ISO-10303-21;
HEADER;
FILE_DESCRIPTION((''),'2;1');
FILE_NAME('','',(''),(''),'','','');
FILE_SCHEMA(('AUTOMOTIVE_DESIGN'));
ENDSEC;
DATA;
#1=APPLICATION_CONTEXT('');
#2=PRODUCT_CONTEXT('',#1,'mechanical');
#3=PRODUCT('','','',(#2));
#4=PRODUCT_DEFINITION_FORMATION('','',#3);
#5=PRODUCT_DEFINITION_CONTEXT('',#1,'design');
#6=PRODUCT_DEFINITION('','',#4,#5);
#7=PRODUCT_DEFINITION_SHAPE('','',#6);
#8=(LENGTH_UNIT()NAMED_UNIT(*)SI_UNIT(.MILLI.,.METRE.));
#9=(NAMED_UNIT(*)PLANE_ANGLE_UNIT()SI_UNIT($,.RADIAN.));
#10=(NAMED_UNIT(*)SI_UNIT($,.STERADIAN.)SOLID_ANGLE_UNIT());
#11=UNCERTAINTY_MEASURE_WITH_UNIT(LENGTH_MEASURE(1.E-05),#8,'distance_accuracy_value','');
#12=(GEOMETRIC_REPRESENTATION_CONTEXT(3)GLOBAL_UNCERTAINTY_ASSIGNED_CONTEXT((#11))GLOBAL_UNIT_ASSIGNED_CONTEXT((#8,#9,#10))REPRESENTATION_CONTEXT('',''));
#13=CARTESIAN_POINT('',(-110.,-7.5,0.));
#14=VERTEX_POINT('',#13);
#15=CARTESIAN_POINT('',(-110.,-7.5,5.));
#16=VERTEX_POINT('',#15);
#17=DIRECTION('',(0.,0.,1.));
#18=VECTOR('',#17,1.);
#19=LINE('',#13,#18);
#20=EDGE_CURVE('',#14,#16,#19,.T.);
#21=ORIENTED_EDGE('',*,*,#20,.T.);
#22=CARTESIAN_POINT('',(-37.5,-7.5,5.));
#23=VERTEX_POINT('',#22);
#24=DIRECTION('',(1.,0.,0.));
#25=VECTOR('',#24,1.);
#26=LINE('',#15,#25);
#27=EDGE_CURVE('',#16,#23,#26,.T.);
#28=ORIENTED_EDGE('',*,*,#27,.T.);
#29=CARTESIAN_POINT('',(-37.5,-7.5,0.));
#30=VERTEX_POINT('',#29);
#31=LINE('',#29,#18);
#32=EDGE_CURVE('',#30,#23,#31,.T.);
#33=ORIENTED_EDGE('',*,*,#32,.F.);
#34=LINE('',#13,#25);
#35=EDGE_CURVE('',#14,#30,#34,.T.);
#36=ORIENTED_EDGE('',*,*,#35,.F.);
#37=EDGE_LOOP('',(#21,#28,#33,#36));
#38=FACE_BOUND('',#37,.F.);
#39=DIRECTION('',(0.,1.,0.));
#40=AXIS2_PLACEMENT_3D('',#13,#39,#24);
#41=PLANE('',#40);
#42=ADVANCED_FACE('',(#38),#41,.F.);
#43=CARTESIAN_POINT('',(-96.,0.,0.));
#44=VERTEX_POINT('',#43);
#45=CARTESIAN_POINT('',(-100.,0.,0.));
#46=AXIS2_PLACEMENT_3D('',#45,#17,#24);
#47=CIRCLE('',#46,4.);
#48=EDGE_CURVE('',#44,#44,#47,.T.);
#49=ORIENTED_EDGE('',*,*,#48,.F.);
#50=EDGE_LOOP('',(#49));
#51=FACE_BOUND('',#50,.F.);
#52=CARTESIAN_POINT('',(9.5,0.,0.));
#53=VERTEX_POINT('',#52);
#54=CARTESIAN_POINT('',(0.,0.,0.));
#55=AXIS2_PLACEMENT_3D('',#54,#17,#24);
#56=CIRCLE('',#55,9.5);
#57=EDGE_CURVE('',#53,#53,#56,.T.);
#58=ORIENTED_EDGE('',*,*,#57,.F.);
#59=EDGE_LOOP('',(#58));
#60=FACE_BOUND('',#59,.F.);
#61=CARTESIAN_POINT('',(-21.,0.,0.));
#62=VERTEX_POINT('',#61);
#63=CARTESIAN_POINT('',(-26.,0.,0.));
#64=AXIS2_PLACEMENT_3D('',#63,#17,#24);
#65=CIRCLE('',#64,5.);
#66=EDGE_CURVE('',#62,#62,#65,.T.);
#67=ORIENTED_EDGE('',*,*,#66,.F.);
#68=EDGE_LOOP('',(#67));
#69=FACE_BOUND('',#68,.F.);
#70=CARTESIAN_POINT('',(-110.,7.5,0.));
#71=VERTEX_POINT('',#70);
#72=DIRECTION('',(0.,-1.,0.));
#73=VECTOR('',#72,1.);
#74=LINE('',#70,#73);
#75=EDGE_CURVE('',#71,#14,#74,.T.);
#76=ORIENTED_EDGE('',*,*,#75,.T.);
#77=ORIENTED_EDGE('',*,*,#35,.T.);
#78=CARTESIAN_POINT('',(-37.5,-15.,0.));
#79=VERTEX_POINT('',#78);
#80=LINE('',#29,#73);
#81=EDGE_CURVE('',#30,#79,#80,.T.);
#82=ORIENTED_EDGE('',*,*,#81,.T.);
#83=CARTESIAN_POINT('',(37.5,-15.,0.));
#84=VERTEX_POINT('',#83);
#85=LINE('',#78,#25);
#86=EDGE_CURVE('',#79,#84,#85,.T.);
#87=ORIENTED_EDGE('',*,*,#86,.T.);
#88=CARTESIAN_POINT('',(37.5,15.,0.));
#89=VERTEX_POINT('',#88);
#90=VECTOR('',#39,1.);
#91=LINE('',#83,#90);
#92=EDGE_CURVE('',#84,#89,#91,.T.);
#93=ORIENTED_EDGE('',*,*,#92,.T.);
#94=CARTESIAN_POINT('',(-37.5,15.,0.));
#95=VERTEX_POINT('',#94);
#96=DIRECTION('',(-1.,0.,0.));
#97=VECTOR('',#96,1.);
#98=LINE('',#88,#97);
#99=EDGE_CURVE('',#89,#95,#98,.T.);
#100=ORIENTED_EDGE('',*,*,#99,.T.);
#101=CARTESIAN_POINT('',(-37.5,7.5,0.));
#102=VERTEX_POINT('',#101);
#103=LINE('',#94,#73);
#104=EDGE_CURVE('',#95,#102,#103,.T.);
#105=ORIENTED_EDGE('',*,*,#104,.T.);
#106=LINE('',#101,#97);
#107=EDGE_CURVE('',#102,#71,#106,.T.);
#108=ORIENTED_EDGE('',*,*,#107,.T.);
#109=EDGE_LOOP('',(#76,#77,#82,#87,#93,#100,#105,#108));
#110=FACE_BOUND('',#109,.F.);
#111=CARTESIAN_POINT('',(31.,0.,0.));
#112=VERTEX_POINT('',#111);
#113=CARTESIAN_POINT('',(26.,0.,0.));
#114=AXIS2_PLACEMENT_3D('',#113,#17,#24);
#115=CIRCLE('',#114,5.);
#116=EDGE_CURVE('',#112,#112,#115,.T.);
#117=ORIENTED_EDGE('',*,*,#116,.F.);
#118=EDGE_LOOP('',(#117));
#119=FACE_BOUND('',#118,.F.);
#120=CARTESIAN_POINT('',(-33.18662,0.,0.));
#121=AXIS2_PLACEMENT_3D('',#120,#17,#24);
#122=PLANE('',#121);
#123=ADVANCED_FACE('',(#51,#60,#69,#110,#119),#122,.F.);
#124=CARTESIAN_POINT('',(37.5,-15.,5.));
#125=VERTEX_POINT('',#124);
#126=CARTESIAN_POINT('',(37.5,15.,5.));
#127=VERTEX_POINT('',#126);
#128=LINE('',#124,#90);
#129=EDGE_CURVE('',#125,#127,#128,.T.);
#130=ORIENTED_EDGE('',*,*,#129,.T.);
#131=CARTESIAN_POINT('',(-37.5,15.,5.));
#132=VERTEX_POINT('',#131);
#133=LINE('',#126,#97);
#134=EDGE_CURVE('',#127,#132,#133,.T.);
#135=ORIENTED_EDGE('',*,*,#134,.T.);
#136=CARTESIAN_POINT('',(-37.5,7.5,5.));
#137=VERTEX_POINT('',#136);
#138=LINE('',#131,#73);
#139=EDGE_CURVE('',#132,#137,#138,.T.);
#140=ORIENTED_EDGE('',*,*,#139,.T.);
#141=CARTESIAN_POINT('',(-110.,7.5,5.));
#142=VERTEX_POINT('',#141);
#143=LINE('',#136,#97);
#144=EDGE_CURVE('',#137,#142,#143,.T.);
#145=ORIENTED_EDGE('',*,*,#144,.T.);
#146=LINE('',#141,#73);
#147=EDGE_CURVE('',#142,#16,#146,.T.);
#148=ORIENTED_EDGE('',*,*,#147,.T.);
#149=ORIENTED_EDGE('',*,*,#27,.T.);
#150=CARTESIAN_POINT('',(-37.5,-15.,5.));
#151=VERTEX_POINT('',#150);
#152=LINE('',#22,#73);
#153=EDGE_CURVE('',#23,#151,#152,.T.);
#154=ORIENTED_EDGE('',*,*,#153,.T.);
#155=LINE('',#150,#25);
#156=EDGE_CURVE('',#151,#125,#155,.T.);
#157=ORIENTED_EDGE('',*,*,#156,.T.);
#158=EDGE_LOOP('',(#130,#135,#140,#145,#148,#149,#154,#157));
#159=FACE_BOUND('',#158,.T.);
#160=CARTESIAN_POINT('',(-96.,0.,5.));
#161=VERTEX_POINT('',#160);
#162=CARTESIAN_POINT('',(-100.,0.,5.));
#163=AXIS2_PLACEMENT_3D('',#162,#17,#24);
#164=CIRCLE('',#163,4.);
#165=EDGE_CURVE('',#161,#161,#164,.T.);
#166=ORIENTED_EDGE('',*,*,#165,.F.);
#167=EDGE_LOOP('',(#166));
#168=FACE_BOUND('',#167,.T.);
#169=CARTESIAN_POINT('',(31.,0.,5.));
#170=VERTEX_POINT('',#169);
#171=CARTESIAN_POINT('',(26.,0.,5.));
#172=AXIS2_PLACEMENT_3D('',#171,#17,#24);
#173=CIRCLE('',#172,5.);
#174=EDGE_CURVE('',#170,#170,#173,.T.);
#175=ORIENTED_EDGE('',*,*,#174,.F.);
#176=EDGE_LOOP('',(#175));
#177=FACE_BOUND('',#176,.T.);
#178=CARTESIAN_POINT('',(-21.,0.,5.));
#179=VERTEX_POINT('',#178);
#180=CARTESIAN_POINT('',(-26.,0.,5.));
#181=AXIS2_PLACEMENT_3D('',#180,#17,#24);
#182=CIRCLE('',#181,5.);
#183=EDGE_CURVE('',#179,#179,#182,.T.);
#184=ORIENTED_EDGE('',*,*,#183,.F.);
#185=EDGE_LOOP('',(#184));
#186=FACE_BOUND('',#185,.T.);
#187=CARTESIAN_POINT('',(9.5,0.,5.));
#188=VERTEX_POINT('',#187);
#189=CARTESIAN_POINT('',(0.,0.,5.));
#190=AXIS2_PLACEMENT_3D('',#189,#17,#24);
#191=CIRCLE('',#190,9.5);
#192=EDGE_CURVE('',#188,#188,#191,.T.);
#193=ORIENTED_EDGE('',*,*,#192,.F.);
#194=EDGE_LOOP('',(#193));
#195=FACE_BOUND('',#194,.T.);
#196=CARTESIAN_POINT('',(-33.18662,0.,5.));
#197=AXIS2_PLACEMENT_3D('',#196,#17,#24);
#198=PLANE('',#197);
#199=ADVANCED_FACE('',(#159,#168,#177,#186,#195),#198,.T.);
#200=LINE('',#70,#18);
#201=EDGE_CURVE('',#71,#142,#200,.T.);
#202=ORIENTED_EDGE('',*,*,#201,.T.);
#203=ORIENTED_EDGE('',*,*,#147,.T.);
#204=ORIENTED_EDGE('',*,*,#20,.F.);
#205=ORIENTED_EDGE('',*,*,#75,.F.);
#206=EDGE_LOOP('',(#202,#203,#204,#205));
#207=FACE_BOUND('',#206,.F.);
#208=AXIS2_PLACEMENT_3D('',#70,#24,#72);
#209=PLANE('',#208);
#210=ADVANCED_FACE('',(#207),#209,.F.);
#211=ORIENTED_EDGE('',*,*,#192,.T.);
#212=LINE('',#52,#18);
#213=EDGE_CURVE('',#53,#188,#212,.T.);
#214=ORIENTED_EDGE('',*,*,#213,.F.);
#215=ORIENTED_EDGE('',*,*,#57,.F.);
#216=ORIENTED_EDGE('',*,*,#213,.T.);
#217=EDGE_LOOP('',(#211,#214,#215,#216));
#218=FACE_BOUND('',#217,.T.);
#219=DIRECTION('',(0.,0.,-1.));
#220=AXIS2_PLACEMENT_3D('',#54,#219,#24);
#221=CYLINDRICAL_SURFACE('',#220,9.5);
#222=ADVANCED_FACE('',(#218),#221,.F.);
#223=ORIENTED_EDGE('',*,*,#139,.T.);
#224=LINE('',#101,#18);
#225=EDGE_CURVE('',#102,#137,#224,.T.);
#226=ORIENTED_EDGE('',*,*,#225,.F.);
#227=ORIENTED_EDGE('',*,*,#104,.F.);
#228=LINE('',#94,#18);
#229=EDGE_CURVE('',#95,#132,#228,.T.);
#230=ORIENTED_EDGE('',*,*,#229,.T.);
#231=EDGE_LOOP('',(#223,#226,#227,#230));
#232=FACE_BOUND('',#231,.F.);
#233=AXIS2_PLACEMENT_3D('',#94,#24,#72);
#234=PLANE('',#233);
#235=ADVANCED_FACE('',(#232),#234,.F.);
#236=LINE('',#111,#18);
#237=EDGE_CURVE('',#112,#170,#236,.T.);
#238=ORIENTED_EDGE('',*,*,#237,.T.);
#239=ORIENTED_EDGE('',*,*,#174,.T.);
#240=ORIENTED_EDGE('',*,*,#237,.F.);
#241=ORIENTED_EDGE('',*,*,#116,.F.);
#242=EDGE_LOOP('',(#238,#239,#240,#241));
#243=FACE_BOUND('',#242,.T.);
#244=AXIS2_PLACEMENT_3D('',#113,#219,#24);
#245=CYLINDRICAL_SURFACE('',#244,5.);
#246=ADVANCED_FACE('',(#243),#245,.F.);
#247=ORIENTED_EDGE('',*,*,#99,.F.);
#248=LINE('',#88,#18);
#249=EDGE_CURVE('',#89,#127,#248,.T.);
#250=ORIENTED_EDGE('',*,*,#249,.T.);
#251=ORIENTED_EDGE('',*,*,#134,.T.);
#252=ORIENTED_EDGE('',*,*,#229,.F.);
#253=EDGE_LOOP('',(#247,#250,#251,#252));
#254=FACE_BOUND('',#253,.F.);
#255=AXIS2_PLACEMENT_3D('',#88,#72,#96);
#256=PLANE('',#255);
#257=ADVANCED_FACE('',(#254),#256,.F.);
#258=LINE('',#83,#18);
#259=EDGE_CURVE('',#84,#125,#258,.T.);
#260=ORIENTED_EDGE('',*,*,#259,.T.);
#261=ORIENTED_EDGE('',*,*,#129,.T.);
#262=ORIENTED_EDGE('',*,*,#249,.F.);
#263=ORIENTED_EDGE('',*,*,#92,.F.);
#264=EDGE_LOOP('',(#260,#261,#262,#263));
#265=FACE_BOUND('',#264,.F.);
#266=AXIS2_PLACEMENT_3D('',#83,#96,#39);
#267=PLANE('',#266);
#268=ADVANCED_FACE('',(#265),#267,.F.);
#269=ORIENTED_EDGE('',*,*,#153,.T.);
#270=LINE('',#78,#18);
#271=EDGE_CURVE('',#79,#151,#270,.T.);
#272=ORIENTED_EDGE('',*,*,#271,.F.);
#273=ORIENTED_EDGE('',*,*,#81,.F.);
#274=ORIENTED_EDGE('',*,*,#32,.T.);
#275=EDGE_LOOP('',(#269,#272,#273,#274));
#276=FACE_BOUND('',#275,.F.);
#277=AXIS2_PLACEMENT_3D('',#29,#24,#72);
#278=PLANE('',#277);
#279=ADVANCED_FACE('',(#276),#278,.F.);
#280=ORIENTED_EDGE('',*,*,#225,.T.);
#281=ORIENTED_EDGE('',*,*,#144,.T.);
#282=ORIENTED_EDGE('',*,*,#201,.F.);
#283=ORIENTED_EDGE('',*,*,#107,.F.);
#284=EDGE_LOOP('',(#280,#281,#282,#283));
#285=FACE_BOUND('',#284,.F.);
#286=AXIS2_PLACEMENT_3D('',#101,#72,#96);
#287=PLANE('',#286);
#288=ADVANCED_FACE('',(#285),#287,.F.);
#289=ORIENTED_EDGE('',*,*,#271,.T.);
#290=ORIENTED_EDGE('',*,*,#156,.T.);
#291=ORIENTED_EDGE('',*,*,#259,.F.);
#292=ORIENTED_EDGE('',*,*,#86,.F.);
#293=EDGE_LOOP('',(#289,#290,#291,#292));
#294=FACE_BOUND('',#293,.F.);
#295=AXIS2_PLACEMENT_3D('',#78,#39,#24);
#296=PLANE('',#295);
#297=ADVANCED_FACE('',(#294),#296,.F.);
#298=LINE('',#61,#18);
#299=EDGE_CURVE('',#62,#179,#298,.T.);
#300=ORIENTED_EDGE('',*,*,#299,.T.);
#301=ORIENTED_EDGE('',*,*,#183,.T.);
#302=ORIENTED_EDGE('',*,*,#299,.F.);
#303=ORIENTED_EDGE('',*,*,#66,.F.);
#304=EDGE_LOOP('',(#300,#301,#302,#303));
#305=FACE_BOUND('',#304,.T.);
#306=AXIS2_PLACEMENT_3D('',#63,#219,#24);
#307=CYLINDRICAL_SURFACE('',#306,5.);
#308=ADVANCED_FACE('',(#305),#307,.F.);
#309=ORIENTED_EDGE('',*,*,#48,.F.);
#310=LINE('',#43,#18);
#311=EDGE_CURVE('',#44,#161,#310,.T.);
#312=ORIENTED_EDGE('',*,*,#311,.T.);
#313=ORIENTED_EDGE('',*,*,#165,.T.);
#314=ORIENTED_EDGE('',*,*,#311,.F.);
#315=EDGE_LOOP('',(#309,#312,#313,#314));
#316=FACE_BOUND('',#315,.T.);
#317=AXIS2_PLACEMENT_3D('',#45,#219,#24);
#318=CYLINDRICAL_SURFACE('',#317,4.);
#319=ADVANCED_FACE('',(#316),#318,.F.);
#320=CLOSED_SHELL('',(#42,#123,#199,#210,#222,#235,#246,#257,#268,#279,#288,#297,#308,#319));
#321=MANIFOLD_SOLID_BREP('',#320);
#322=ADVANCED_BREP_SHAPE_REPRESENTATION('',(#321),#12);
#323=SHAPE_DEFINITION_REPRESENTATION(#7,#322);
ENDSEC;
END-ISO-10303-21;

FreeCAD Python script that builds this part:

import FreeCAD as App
import Part
import Sketcher
Q = App.Units.Quantity

doc = App.newDocument("Part")
body = doc.addObject("PartDesign::Body", "Body")

# Sketch on XY plane
sketch1 = body.newObject("Sketcher::SketchObject", "Sketch")
sketch1.AttachmentSupport = (doc.getObject("XY_Plane"), [""])
sketch1.MapMode = "FlatFace"
sketch1.addGeometry(Part.LineSegment(App.Vector(37.5, 15, 0), App.Vector(-37.5, 15, 0)), False)
sketch1.addGeometry(Part.LineSegment(App.Vector(-37.5, 15, 0), App.Vector(-37.5, 7.5, 0)), False)
sketch1.addGeometry(Part.LineSegment(App.Vector(-37.5, 7.5, 0), App.Vector(-110, 7.5, 0)), False)
sketch1.addGeometry(Part.LineSegment(App.Vector(-110, 7.5, 0), App.Vector(-110, -7.5, 0)), False)
sketch1.addGeometry(Part.LineSegment(App.Vector(-110, -7.5, 0), App.Vector(-37.5, -7.5, 0)), False)
sketch1.addGeometry(Part.LineSegment(App.Vector(-37.5, -7.5, 0), App.Vector(-37.5, -15, 0)), False)
sketch1.addGeometry(Part.LineSegment(App.Vector(-37.5, -15, 0), App.Vector(37.5, -15, 0)), False)
sketch1.addGeometry(Part.LineSegment(App.Vector(37.5, -15, 0), App.Vector(37.5, 15, 0)), False)
sketch1.addGeometry(Part.Circle(App.Vector(-100, 0, 0), App.Vector(0, 0, 1), 4), False)
sketch1.addGeometry(Part.Circle(App.Vector(-26, 0, 0), App.Vector(0, 0, 1), 5), False)
sketch1.addGeometry(Part.Circle(App.Vector(0, 0, 0), App.Vector(0, 0, 1), 9.5), False)
sketch1.addGeometry(Part.Circle(App.Vector(26, 0, 0), App.Vector(0, 0, 1), 5), False)
sketch1.addConstraint(Sketcher.Constraint("Coincident", 0, 2, 1, 1))
sketch1.addConstraint(Sketcher.Constraint("Coincident", 1, 2, 2, 1))
sketch1.addConstraint(Sketcher.Constraint("Coincident", 2, 2, 3, 1))
sketch1.addConstraint(Sketcher.Constraint("Coincident", 3, 2, 4, 1))
sketch1.addConstraint(Sketcher.Constraint("Coincident", 4, 2, 5, 1))
sketch1.addConstraint(Sketcher.Constraint("Coincident", 5, 2, 6, 1))
sketch1.addConstraint(Sketcher.Constraint("Coincident", 6, 2, 7, 1))
sketch1.addConstraint(Sketcher.Constraint("Coincident", 7, 2, 0, 1))
sketch1.addConstraint(Sketcher.Constraint("Horizontal", 0))
sketch1.addConstraint(Sketcher.Constraint("Vertical", 1))
sketch1.addConstraint(Sketcher.Constraint("Horizontal", 2))
sketch1.addConstraint(Sketcher.Constraint("Vertical", 3))
sketch1.addConstraint(Sketcher.Constraint("Horizontal", 4))
sketch1.addConstraint(Sketcher.Constraint("Vertical", 5))
sketch1.addConstraint(Sketcher.Constraint("Horizontal", 6))
sketch1.addConstraint(Sketcher.Constraint("Vertical", 7))
sketch1.addConstraint(Sketcher.Constraint("Coincident", 10, 3, -1, 1))
sketch1.addConstraint(Sketcher.Constraint("Equal", 9, 11))
sketch1.addConstraint(Sketcher.Constraint("Symmetric", 9, 3, 11, 3, -1, 1))
sketch1.addConstraint(Sketcher.Constraint("Symmetric", 0, 2, 6, 2, -1, 1))
sketch1.addConstraint(Sketcher.Constraint("Symmetric", 1, 2, 4, 2, -1))
sketch1.addConstraint(Sketcher.Constraint("PointOnObject", 8, 3, -1))
sketch1.addConstraint(Sketcher.Constraint("PointOnObject", 9, 3, -1))
sketch1.addConstraint(Sketcher.Constraint("Diameter", 8, Q("8 mm")))
sketch1.addConstraint(Sketcher.Constraint("Diameter", 9, Q("10 mm")))
sketch1.addConstraint(Sketcher.Constraint("Diameter", 10, Q("19 mm")))
sketch1.addConstraint(Sketcher.Constraint("DistanceX", 0, 2, 0, 1, Q("75 mm")))
sketch1.addConstraint(Sketcher.Constraint("DistanceY", 3, 2, 3, 1, Q("15 mm")))
sketch1.addConstraint(Sketcher.Constraint("DistanceY", 7, 1, 7, 2, Q("30 mm")))
sketch1.addConstraint(Sketcher.Constraint("DistanceX", 2, 2, 2, 1, Q("72.5 mm")))
sketch1.addConstraint(Sketcher.Constraint("DistanceX", 8, 3, -1, 1, Q("100 mm")))
sketch1.addConstraint(Sketcher.Constraint("DistanceX", 9, 3, -1, 1, Q("26 mm")))
pad1 = body.newObject("PartDesign::Pad", "Pad")
pad1.Profile = sketch1
pad1.Length = 5

doc.recompute()
